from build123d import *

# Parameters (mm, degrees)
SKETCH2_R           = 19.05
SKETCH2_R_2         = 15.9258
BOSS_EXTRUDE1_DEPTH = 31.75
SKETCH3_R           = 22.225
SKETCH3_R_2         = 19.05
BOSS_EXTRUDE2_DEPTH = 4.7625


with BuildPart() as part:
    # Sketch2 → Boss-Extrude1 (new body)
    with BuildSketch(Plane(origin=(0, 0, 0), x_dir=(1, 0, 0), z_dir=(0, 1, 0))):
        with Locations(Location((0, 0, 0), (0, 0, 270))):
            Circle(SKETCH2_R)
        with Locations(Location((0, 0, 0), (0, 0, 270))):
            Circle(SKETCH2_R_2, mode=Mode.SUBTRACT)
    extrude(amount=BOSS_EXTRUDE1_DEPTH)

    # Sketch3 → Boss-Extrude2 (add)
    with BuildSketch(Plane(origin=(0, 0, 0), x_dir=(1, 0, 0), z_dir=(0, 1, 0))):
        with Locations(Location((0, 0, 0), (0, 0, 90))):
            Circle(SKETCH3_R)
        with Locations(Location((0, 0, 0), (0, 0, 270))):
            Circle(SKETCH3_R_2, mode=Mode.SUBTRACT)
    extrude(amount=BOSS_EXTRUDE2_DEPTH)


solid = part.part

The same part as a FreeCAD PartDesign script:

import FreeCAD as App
import Part
import Sketcher
from FreeCAD import Vector
Q = App.Units.Quantity

doc = App.newDocument("Part")
body = doc.addObject("PartDesign::Body", "Body")

# Sketch on XZ plane
sketch1 = body.newObject("Sketcher::SketchObject", "Sketch")
sketch1.AttachmentSupport = (doc.getObject("XZ_Plane"), [""])
sketch1.MapMode = "FlatFace"
sketch1.addGeometry([
    Part.Circle(Vector(0, 0, 0), Vector(0, 0, 1), 19.05),
    Part.Circle(Vector(0, 0, 0), Vector(0, 0, 1), 15.9258),
], False)
sketch1.addConstraint([
    Sketcher.Constraint("Coincident", 0, 3, -1, 1),
    Sketcher.Constraint("Coincident", 1, 3, -1, 1),
    Sketcher.Constraint("Diameter", 0, Q("1.5 in")),
    Sketcher.Constraint("Diameter", 1, Q("1.254 in")),
])
pad1 = body.newObject("PartDesign::Pad", "Pad")
pad1.Profile = sketch1
pad1.Length = Q("1.25 in")
pad1.Reversed = True

# Sketch on XZ plane
sketch2 = body.newObject("Sketcher::SketchObject", "Sketch001")
sketch2.AttachmentSupport = (doc.getObject("XZ_Plane"), [""])
sketch2.MapMode = "FlatFace"
sketch2.addGeometry([
    Part.Circle(Vector(0, 0, 0), Vector(0, 0, 1), 22.225),
    Part.Circle(Vector(0, 0, 0), Vector(0, 0, 1), 19.05),
], False)
sketch2.addConstraint([
    Sketcher.Constraint("Coincident", 0, 3, -1, 1),
    Sketcher.Constraint("Coincident", 1, 3, -1, 1),
    Sketcher.Constraint("Diameter", 1, Q("1.5 in")),
    Sketcher.Constraint("Diameter", 0, Q("1.75 in")),
])
pad2 = body.newObject("PartDesign::Pad", "Pad001")
pad2.Profile = sketch2
pad2.Length = Q("0.1875 in")
pad2.Reversed = True

doc.recompute()
